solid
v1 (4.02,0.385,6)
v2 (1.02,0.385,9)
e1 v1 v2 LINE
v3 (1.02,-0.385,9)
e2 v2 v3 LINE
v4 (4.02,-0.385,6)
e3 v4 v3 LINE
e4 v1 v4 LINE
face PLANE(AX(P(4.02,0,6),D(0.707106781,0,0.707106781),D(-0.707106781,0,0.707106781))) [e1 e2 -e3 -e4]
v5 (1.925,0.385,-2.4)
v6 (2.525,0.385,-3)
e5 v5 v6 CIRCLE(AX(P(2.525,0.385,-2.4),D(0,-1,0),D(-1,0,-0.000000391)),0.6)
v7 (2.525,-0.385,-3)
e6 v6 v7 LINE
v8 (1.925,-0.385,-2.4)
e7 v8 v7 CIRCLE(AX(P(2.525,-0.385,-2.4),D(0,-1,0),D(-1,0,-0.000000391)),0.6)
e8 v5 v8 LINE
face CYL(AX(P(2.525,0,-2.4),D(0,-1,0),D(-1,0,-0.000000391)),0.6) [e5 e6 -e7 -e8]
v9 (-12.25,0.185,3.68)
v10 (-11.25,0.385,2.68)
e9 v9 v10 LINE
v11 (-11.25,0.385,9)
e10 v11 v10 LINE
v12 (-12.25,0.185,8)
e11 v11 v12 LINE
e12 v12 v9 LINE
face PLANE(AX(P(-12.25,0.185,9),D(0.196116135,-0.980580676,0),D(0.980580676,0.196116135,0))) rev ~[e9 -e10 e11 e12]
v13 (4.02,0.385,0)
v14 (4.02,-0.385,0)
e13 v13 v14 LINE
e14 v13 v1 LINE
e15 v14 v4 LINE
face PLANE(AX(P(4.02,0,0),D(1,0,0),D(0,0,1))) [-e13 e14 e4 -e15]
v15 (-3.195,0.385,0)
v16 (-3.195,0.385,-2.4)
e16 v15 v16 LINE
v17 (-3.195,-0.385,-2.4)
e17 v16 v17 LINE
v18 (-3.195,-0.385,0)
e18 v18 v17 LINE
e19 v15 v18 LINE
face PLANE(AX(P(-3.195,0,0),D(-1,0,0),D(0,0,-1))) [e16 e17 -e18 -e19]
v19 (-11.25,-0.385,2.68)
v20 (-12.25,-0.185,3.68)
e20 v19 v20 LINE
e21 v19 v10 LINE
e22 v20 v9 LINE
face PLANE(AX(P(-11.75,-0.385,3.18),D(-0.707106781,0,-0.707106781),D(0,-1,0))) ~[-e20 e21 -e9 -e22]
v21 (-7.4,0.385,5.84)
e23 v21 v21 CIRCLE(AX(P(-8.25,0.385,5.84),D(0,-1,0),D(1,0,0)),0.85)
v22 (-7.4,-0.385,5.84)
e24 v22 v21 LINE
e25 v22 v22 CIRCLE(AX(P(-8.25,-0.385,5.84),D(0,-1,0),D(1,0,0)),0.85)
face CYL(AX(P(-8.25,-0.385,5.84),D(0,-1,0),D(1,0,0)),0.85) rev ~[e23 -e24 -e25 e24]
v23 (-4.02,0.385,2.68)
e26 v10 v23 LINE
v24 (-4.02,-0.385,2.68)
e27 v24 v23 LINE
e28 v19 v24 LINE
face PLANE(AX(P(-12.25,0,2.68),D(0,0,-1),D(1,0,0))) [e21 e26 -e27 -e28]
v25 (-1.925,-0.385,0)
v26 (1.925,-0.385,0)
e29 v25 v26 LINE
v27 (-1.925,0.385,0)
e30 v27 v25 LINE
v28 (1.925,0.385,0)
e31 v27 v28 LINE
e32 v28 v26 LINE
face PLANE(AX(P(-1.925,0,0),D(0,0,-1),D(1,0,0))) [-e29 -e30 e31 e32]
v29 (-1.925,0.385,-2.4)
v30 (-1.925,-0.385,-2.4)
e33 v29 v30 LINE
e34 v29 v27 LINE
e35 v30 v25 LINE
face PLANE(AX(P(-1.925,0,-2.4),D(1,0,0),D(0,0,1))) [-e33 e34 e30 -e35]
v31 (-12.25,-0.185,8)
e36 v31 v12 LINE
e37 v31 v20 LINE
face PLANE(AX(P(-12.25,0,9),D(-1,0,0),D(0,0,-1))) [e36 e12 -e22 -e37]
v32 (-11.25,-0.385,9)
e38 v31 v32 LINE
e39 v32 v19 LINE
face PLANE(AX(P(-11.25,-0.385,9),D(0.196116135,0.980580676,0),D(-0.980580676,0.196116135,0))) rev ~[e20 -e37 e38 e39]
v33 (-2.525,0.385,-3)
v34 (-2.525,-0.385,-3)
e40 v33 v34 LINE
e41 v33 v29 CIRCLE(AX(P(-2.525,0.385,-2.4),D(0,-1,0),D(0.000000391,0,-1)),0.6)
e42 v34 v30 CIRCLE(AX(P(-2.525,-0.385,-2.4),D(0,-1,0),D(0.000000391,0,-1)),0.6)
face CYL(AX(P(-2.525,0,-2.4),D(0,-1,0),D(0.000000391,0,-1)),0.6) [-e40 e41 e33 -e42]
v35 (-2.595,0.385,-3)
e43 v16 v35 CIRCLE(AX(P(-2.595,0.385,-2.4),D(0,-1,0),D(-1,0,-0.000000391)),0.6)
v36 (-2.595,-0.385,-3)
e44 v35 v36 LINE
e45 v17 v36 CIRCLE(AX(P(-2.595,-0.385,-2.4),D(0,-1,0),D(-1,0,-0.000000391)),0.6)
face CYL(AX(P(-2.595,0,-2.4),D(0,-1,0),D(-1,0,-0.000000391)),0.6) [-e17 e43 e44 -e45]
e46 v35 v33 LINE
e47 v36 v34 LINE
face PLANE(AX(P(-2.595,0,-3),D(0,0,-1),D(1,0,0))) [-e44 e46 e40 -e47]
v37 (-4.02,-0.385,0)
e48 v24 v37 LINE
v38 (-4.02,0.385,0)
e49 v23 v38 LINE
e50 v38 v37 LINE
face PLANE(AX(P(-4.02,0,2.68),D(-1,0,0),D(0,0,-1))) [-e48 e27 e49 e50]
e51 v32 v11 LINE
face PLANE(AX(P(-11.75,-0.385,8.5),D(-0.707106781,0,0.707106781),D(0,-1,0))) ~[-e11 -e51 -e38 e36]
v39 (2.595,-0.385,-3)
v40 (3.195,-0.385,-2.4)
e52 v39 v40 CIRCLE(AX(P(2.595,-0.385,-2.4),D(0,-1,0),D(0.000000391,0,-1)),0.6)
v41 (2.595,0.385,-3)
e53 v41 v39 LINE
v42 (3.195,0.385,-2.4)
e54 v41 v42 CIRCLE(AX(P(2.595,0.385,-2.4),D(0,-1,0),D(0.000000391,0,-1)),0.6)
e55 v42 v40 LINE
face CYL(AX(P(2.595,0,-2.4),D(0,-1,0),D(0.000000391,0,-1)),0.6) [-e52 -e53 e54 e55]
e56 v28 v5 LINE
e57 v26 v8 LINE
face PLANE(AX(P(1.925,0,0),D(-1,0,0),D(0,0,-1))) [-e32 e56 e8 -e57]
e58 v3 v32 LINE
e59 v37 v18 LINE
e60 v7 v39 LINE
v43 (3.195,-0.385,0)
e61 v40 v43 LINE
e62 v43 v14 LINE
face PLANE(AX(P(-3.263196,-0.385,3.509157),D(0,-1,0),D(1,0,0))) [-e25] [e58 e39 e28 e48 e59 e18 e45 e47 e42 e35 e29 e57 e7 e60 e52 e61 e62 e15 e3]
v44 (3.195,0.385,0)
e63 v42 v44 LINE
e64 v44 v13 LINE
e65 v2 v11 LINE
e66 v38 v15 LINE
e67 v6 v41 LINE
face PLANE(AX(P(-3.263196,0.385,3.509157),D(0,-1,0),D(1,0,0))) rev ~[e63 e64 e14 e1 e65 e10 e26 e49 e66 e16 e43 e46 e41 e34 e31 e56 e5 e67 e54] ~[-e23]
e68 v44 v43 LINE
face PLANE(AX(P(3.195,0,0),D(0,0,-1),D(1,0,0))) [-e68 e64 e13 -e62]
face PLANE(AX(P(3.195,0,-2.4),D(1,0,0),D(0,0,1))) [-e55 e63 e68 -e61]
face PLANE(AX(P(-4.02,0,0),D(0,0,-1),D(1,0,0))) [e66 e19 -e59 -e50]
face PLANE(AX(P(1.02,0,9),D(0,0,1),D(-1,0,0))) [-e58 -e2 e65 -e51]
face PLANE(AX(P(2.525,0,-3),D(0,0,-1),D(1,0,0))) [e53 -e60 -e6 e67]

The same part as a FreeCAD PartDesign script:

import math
import FreeCAD as App
import Part
import Sketcher

V = App.Vector
Q = App.Units.Quantity


def edges_at(feature, points):
    """Names of the edges that pass closest to the given points."""
    edges = feature.Shape.Edges
    near = lambda p: min(range(len(edges)), key=lambda i: edges[i].distToShape(Part.Vertex(*p))[0])
    return sorted({f"Edge{near(p) + 1}" for p in points})


def add_polygon(sketch, points):
    """Adds a closed chain of lines whose ends are joined by coincident constraints."""
    first, n = sketch.GeometryCount, len(points)
    for a, b in zip(points, points[1:] + points[:1]):
        sketch.addGeometry(Part.LineSegment(App.Vector(*a, 0), App.Vector(*b, 0)), False)
    for i in range(n):
        sketch.addConstraint(Sketcher.Constraint("Coincident", first + i, 2, first + (i + 1) % n, 1))

doc = App.newDocument("Part")
body = doc.addObject("PartDesign::Body", "Body")

sketch1 = body.newObject("Sketcher::SketchObject", "Sketch")
sketch1.AttachmentSupport = (doc.getObject("XZ_Plane"), [""])
sketch1.MapMode = "FlatFace"
sketch1.addGeometry([
    Part.LineSegment(V(-4.02, 2.68, 0), V(-4.02, 0, 0)),
    Part.LineSegment(V(-4.02, 0, 0), V(-3.195, 0, 0)),
    Part.LineSegment(V(-3.195, 0, 0), V(-3.195, -2.4, 0)),
    Part.ArcOfCircle(Part.Circle(V(-2.595, -2.4, 0), V(0, 0, 1), 0.6), math.radians(-179.999978), math.radians(-90.000022)),
    Part.LineSegment(V(-2.595, -3, 0), V(-2.525, -3, 0)),
    Part.ArcOfCircle(Part.Circle(V(-2.525, -2.4, 0), V(0, 0, 1), 0.6), math.radians(-89.999978), math.radians(-0.000022)),
    Part.LineSegment(V(-1.925, -2.4, 0), V(-1.925, 0, 0)),
    Part.LineSegment(V(-1.925, 0, 0), V(1.925, 0, 0)),
    Part.LineSegment(V(1.925, 0, 0), V(1.925, -2.4, 0)),
    Part.ArcOfCircle(Part.Circle(V(2.525, -2.4, 0), V(0, 0, 1), 0.6), math.radians(-179.999978), math.radians(-90.000022)),
    Part.LineSegment(V(2.525, -3, 0), V(2.595, -3, 0)),
    Part.ArcOfCircle(Part.Circle(V(2.595, -2.4, 0), V(0, 0, 1), 0.6), math.radians(-89.999978), math.radians(-0.000022)),
    Part.LineSegment(V(3.195, -2.4, 0), V(3.195, 0, 0)),
    Part.LineSegment(V(3.195, 0, 0), V(4.02, 0, 0)),
    Part.LineSegment(V(4.02, 0, 0), V(4.02, 6, 0)),
    Part.LineSegment(V(4.02, 6, 0), V(1.02, 9, 0)),
    Part.LineSegment(V(1.02, 9, 0), V(-12.25, 9, 0)),
    Part.LineSegment(V(-12.25, 9, 0), V(-12.25, 2.68, 0)),
    Part.LineSegment(V(-12.25, 2.68, 0), V(-4.02, 2.68, 0)),
], False)
sketch1.addConstraint([
    Sketcher.Constraint("Coincident", 0, 2, 1, 1),
    Sketcher.Constraint("Coincident", 1, 2, 2, 1),
    Sketcher.Constraint("Tangent", 2, 2, 3, 1),
    Sketcher.Constraint("Tangent", 3, 2, 4, 1),
    Sketcher.Constraint("Tangent", 4, 2, 5, 1),
    Sketcher.Constraint("Tangent", 5, 2, 6, 1),
    Sketcher.Constraint("Coincident", 6, 2, 7, 1),
    Sketcher.Constraint("Coincident", 7, 2, 8, 1),
    Sketcher.Constraint("Tangent", 8, 2, 9, 1),
    Sketcher.Constraint("Tangent", 9, 2, 10, 1),
    Sketcher.Constraint("Tangent", 10, 2, 11, 1),
    Sketcher.Constraint("Tangent", 11, 2, 12, 1),
    Sketcher.Constraint("Coincident", 12, 2, 13, 1),
    Sketcher.Constraint("Coincident", 13, 2, 14, 1),
    Sketcher.Constraint("Coincident", 14, 2, 15, 1),
    Sketcher.Constraint("Coincident", 15, 2, 16, 1),
    Sketcher.Constraint("Coincident", 16, 2, 17, 1),
    Sketcher.Constraint("Coincident", 17, 2, 18, 1),
    Sketcher.Constraint("Coincident", 18, 2, 0, 1),
    Sketcher.Constraint("Vertical", 0),
    Sketcher.Constraint("Horizontal", 1),
    Sketcher.Constraint("Vertical", 2),
    Sketcher.Constraint("Horizontal", 4),
    Sketcher.Constraint("Vertical", 6),
    Sketcher.Constraint("Horizontal", 7),
    Sketcher.Constraint("Vertical", 8),
    Sketcher.Constraint("Horizontal", 10),
    Sketcher.Constraint("Vertical", 12),
    Sketcher.Constraint("Horizontal", 13),
    Sketcher.Constraint("Vertical", 14),
    Sketcher.Constraint("Horizontal", 16),
    Sketcher.Constraint("Vertical", 17),
    Sketcher.Constraint("Horizontal", 18),
    Sketcher.Constraint("Equal", 3, 5),
    Sketcher.Constraint("Equal", 5, 9),
    Sketcher.Constraint("Equal", 9, 11),
    Sketcher.Constraint("Symmetric", 6, 2, 7, 2, -1, 1),
    Sketcher.Constraint("Symmetric", 1, 2, 12, 2, -1, 1),
    Sketcher.Constraint("Symmetric", 0, 2, 13, 2, -2),
    Sketcher.Constraint("Horizontal", 5, 3, 9, 3),
    Sketcher.Constraint("Radius", 3, Q("0.6 mm")),
    Sketcher.Constraint("DistanceY", 14, 1, 14, 2, Q("6 mm")),
    Sketcher.Constraint("Angle", 15, Q("135 deg")),
    Sketcher.Constraint("DistanceY", 2, 2, 2, 1, Q("2.4 mm")),
    Sketcher.Constraint("DistanceY", -1, 1, 15, 2, Q("9 mm")),
    Sketcher.Constraint("DistanceX", 4, 1, 4, 2, Q("0.07 mm")),
    Sketcher.Constraint("DistanceX", 7, 1, 7, 2, Q("3.85 mm")),
    Sketcher.Constraint("DistanceX", 16, 2, 16, 1, Q("13.27 mm")),
    Sketcher.Constraint("DistanceX", 18, 1, 18, 2, Q("8.23 mm")),
    Sketcher.Constraint("DistanceY", 0, 2, 0, 1, Q("2.68 mm")),
])
pad1 = body.newObject("PartDesign::Pad", "Pad")
pad1.Profile = sketch1
pad1.Length = 0.77
pad1.Midplane = True
doc.recompute()

chamfer = body.newObject("PartDesign::Chamfer", "Chamfer")
chamfer.Base = (pad1, edges_at(pad1, [(-12.25, 0, 9), (-12.25, 0, 2.68)]))
chamfer.Size = 1

sketch2 = body.newObject("Sketcher::SketchObject", "Sketch001")
sketch2.AttachmentSupport = (doc.getObject("XZ_Plane"), [""])
sketch2.MapMode = "FlatFace"
sketch2.AttachmentOffset = App.Placement(V(0, 0, 0.385), App.Rotation())
sketch2.addGeometry(Part.Circle(V(-8.25, 5.84, 0), V(0, 0, 1), 0.85), False)
sketch2.addConstraint([
    Sketcher.Constraint("Diameter", 0, Q("1.7 mm")),
    Sketcher.Constraint("DistanceX", 0, 3, -1, 1, Q("8.25 mm")),
    Sketcher.Constraint("DistanceY", -1, 1, 0, 3, Q("5.84 mm")),
])
pocket1 = body.newObject("PartDesign::Pocket", "Pocket")
pocket1.Profile = sketch2
pocket1.Type = "ThroughAll"

sketch3 = body.newObject("Sketcher::SketchObject", "Sketch002")
sketch3.AttachmentSupport = (doc.getObject("XY_Plane"), [""])
sketch3.MapMode = "FlatFace"
sketch3.AttachmentOffset = App.Placement(V(0, 0, 9), App.Rotation())
add_polygon(sketch3, [(-12.25, 0.185), (-11.25, 0.385), (-12.25, 0.385)])
add_polygon(sketch3, [(-12.25, -0.385), (-11.25, -0.385), (-12.25, -0.185)])
sketch3.addConstraint([
    Sketcher.Constraint("Horizontal", 1),
    Sketcher.Constraint("Vertical", 2),
    Sketcher.Constraint("Horizontal", 3),
    Sketcher.Constraint("Vertical", 5),
    Sketcher.Constraint("Symmetric", 0, 2, 3, 2, -1),
    Sketcher.Constraint("Symmetric", 2, 2, 4, 2, -1),
    Sketcher.Constraint("DistanceX", 1, 2, 1, 1, Q("1 mm")),
    Sketcher.Constraint("DistanceY", 2, 2, 2, 1, Q("0.2 mm")),
    Sketcher.Constraint("DistanceX", 0, 2, -1, 1, Q("11.25 mm")),
    Sketcher.Constraint("DistanceY", 3, 2, 0, 2, Q("0.77 mm")),
])
pocket2 = body.newObject("PartDesign::Pocket", "Pocket001")
pocket2.Profile = sketch3
pocket2.Type = "ThroughAll"

doc.recompute()
